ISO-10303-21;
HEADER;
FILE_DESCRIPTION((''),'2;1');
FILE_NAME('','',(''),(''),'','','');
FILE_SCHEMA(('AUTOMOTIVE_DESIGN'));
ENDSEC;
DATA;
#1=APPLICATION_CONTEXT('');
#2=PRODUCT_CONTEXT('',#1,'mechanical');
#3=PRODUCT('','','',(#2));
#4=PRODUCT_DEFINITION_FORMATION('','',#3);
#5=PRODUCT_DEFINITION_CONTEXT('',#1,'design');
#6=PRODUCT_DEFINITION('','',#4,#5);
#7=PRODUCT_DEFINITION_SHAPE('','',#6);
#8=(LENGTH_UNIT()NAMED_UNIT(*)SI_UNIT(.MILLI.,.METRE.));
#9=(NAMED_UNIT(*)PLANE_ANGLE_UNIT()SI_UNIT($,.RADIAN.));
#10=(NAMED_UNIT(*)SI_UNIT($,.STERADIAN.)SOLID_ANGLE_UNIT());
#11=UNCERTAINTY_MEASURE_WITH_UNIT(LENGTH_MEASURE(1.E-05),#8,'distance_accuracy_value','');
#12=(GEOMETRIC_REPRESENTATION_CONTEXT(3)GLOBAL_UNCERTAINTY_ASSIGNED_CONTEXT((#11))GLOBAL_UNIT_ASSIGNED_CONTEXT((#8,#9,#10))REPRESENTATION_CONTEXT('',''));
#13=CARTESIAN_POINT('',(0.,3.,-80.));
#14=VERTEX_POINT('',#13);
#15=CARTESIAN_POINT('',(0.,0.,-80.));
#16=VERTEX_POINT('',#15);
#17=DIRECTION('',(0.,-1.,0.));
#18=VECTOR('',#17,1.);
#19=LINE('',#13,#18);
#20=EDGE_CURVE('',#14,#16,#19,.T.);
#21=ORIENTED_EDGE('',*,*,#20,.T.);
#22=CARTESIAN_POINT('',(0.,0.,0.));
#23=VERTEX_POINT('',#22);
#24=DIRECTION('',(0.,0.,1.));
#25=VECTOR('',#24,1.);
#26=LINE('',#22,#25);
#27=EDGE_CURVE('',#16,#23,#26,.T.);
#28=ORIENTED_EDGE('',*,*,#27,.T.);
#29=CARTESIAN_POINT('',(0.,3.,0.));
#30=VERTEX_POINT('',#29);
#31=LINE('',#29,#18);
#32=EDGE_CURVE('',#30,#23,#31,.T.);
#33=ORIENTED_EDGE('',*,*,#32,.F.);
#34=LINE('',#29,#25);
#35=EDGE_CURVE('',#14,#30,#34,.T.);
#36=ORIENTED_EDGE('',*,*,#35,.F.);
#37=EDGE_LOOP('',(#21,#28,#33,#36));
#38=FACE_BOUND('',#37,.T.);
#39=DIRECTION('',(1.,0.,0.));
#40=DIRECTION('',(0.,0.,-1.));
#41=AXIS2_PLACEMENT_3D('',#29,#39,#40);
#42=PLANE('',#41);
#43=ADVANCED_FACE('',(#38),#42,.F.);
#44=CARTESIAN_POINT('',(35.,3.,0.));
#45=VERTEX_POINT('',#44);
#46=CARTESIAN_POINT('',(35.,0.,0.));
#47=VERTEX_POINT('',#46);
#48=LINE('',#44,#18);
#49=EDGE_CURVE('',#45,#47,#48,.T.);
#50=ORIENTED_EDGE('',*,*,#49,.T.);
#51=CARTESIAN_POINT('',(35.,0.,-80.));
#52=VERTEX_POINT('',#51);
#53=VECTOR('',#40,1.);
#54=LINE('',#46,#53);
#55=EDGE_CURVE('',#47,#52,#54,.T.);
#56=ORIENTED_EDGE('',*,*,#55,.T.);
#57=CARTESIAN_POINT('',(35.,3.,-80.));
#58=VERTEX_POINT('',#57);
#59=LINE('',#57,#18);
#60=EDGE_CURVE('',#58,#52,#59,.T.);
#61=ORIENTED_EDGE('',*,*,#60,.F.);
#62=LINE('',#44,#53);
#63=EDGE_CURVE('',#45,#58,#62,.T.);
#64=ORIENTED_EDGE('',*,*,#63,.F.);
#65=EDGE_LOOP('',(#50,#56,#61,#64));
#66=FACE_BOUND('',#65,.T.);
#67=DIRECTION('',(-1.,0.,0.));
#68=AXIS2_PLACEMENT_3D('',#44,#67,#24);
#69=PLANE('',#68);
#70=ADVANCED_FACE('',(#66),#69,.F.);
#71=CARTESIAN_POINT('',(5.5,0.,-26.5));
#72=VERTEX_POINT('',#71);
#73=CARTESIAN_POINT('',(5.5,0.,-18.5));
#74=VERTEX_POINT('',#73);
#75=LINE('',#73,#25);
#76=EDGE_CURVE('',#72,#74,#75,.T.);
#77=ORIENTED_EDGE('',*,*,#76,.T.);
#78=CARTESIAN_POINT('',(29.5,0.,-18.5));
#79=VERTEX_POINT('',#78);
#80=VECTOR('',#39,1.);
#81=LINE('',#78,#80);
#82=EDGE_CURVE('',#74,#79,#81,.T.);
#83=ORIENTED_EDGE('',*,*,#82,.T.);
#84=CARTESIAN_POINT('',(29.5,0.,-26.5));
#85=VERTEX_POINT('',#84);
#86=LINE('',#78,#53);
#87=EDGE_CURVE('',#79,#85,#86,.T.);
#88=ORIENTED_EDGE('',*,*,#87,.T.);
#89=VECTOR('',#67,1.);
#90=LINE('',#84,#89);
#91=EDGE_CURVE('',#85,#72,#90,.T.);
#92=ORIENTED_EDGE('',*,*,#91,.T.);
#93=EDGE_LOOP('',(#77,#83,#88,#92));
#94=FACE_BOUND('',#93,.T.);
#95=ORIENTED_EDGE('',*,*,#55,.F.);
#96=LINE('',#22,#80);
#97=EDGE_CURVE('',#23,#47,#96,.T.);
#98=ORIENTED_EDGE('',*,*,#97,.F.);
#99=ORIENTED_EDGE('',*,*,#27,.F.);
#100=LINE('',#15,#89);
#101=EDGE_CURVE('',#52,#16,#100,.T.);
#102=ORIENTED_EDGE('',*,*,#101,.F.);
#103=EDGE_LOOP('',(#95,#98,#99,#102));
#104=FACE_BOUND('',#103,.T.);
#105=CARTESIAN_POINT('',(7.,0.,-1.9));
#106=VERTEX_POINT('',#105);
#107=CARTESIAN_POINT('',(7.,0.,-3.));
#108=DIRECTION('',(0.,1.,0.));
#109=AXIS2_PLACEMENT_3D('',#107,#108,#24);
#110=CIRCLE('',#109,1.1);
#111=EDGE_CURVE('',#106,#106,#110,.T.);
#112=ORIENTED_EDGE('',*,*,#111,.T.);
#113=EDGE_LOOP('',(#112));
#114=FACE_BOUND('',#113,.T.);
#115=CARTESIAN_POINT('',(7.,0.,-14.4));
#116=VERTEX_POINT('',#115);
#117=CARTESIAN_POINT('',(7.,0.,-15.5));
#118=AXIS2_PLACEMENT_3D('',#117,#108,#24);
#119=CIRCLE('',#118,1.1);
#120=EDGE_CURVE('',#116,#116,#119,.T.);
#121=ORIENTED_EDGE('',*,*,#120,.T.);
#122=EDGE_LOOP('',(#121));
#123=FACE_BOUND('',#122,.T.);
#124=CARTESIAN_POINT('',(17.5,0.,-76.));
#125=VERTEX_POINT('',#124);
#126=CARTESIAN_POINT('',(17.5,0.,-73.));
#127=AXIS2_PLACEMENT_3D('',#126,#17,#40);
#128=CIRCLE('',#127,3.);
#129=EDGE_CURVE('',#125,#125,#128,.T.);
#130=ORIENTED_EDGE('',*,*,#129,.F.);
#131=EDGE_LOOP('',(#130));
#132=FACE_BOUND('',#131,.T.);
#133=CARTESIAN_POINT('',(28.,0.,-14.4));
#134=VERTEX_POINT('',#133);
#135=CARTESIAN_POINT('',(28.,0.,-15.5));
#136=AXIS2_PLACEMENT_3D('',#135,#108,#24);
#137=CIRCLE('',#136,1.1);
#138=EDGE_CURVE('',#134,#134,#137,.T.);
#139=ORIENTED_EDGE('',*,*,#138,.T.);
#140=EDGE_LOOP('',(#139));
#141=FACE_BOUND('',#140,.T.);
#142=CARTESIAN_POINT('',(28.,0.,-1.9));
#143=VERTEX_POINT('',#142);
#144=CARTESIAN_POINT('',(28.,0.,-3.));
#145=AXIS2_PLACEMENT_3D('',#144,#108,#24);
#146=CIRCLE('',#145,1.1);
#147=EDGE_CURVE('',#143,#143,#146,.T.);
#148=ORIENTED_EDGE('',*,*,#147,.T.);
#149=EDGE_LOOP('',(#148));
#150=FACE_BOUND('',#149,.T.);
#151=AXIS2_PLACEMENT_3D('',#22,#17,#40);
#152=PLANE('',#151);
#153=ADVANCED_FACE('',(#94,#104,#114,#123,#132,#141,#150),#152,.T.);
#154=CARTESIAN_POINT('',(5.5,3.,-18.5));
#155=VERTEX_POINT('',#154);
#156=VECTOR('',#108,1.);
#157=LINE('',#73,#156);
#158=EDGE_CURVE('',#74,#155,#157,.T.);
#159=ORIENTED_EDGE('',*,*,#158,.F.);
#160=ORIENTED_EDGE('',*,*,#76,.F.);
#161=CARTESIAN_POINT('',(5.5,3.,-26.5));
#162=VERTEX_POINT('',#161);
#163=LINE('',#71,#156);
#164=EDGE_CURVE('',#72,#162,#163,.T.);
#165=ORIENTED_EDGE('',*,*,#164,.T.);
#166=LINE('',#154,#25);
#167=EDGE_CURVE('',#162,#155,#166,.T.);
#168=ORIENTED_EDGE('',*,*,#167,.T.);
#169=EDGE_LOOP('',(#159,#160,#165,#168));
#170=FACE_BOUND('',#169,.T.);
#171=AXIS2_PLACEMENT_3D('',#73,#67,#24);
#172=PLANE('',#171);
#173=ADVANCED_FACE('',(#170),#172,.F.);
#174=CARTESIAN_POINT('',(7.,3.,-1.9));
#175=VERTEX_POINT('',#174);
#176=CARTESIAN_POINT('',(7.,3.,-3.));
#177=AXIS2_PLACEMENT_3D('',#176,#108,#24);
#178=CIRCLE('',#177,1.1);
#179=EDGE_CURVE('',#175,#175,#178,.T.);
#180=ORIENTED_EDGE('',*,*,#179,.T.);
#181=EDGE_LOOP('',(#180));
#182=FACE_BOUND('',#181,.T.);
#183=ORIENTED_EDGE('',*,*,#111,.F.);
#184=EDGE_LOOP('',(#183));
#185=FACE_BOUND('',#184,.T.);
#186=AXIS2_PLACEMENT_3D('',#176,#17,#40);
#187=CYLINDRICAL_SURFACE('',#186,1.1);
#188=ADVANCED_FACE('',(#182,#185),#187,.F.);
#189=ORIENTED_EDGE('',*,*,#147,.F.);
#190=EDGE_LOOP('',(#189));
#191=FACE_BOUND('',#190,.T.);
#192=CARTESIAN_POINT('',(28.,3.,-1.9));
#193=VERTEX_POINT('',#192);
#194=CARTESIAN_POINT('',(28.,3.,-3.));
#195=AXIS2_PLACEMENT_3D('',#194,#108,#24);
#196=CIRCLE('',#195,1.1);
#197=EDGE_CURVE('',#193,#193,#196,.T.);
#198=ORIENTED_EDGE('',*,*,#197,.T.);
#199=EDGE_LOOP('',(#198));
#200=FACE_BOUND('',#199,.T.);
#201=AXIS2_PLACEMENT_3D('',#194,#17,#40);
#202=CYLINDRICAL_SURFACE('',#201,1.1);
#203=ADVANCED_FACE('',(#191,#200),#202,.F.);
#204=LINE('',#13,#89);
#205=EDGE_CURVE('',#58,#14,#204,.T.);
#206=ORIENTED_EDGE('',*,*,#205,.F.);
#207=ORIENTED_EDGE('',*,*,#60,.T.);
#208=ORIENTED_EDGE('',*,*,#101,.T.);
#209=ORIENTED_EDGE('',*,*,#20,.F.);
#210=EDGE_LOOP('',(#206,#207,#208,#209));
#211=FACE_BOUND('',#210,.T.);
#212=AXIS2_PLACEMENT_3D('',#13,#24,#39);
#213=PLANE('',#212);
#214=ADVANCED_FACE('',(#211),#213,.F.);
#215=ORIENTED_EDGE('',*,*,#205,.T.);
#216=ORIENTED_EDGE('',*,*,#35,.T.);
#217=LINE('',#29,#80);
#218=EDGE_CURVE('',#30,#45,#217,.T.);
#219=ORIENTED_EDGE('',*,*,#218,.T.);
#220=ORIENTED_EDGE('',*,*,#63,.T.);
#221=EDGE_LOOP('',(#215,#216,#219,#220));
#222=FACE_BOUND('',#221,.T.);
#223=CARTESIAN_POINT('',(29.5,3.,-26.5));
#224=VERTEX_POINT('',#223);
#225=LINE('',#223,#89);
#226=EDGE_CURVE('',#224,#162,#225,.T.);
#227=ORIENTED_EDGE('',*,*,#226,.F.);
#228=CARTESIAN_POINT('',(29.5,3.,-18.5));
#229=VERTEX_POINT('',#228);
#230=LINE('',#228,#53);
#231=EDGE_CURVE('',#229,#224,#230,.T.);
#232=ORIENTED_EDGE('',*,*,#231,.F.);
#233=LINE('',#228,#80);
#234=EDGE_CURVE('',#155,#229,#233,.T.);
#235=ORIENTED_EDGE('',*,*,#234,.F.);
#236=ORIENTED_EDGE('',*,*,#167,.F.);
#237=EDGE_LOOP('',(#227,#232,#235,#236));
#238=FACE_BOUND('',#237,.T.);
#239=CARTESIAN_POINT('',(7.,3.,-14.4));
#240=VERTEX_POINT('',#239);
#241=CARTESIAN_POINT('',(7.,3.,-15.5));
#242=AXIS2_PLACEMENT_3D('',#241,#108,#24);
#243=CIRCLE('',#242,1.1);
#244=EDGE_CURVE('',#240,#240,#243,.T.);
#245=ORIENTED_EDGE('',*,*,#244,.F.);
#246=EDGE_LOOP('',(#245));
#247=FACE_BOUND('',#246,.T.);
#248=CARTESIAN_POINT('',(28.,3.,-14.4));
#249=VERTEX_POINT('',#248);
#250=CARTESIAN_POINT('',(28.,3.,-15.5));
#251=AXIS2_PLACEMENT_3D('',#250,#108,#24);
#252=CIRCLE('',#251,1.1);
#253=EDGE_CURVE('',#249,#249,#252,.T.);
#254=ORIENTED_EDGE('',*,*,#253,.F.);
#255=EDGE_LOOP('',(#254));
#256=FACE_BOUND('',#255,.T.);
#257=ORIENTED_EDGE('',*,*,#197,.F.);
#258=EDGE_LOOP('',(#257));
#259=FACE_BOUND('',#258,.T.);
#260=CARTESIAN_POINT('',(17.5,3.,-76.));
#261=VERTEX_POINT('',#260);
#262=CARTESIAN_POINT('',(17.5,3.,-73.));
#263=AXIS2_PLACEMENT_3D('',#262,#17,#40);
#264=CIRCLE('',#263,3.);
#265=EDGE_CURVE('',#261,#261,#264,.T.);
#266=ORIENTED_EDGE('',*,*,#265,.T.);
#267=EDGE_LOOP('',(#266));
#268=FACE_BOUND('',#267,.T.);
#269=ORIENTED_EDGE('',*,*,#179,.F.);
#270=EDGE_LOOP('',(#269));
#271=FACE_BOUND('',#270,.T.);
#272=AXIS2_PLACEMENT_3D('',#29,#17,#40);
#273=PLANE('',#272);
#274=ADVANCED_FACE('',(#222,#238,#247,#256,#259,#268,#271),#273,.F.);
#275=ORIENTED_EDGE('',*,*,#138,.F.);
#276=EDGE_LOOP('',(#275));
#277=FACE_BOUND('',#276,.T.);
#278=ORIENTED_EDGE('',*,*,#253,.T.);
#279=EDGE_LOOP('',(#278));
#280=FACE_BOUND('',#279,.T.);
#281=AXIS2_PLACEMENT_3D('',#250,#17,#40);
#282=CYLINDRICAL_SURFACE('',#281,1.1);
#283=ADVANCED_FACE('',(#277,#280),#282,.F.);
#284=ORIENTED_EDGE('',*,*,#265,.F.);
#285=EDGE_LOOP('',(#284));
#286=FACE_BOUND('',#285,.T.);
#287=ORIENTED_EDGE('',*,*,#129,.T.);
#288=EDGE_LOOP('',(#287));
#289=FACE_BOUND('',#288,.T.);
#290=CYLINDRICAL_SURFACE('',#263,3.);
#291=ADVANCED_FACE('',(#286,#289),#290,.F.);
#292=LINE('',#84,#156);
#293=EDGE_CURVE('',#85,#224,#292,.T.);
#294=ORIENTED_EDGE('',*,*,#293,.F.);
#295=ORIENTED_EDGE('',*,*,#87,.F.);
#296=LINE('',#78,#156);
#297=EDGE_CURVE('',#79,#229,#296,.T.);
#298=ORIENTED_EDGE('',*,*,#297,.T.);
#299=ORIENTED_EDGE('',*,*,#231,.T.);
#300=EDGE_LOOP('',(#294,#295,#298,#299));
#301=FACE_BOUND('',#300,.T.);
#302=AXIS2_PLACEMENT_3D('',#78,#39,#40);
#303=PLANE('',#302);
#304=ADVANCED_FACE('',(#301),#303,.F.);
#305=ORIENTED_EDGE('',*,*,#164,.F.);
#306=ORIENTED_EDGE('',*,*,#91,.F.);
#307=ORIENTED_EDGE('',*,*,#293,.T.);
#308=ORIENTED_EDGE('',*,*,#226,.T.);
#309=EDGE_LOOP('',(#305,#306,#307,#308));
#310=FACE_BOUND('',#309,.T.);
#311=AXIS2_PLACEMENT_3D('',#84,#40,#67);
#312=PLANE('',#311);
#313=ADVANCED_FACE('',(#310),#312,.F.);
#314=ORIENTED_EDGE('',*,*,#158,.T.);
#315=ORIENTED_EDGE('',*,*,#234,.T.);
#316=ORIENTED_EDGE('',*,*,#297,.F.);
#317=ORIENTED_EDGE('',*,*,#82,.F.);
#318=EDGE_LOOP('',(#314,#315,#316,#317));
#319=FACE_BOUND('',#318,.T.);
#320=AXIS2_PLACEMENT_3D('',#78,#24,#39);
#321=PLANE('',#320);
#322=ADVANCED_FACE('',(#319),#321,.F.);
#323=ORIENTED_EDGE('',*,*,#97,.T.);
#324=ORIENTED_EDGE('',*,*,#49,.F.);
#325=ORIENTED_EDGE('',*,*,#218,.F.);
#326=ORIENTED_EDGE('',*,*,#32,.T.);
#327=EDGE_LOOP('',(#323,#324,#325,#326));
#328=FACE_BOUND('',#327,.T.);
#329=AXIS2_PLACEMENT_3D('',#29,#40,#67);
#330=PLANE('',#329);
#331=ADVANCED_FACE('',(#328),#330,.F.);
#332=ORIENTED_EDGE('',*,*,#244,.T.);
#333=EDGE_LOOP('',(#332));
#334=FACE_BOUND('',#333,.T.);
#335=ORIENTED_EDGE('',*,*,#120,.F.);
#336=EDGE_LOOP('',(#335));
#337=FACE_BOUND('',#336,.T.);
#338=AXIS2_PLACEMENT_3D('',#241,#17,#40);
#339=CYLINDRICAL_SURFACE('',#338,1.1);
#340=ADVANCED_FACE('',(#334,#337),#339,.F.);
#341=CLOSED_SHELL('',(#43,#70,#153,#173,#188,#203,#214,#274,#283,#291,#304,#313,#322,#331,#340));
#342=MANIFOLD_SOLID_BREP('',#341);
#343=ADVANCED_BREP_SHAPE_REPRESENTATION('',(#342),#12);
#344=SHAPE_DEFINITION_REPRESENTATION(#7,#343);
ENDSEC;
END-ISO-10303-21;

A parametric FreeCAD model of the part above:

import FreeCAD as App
import Part
import Sketcher
from FreeCAD import Vector


def add_polygon(sketch, points):
    """Adds a closed chain of lines whose ends are joined by coincident constraints."""
    first, n = sketch.GeometryCount, len(points)
    for a, b in zip(points, points[1:] + points[:1]):
        sketch.addGeometry(Part.LineSegment(App.Vector(*a, 0), App.Vector(*b, 0)), False)
    for i in range(n):
        sketch.addConstraint(Sketcher.Constraint("Coincident", first + i, 2, first + (i + 1) % n, 1))

doc = App.newDocument("Part")
body = doc.addObject("PartDesign::Body", "Body")

sketch1 = body.newObject("Sketcher::SketchObject", "Sketch")
sketch1.AttachmentSupport = (doc.getObject("XZ_Plane"), [""])
sketch1.MapMode = "FlatFace"
add_polygon(sketch1, [(0, -80), (0, 0), (35, 0), (35, -80)])
sketch1.addGeometry(Part.Circle(Vector(7, -3, 0), Vector(0, 0, 1), 1.1), False)
sketch1.addGeometry(Part.Circle(Vector(28, -3, 0), Vector(0, 0, 1), 1.1), False)
sketch1.addGeometry(Part.Circle(Vector(7, -15.5, 0), Vector(0, 0, 1), 1.1), False)
sketch1.addGeometry(Part.Circle(Vector(28, -15.5, 0), Vector(0, 0, 1), 1.1), False)
sketch1.addConstraint([
    Sketcher.Constraint("Vertical", 0),
    Sketcher.Constraint("Horizontal", 1),
    Sketcher.Constraint("Vertical", 2),
    Sketcher.Constraint("Horizontal", 3),
    Sketcher.Constraint("Coincident", 0, 2, -1, 1),
    Sketcher.Constraint("Equal", 4, 5),
    Sketcher.Constraint("Equal", 5, 6),
    Sketcher.Constraint("Equal", 6, 7),
    Sketcher.Constraint("Horizontal", 4, 3, 5, 3),
    Sketcher.Constraint("Horizontal", 6, 3, 7, 3),
    Sketcher.Constraint("Vertical", 4, 3, 6, 3),
    Sketcher.Constraint("Vertical", 5, 3, 7, 3),
    Sketcher.Constraint("Diameter", 4, 2.2),
    Sketcher.Constraint("DistanceX", 1, 1, 1, 2, 35.0),
    Sketcher.Constraint("DistanceY", 0, 1, 0, 2, 80.0),
    Sketcher.Constraint("DistanceX", -1, 1, 4, 3, 7.0),
    Sketcher.Constraint("DistanceY", 4, 3, -1, 1, 3.0),
    Sketcher.Constraint("DistanceX", -1, 1, 5, 3, 28.0),
    Sketcher.Constraint("DistanceY", 6, 3, -1, 1, 15.5),
])
pad1 = body.newObject("PartDesign::Pad", "Pad")
pad1.Profile = sketch1
pad1.Length = 3
pad1.Reversed = True

sketch2 = body.newObject("Sketcher::SketchObject", "Sketch001")
sketch2.AttachmentSupport = (doc.getObject("XZ_Plane"), [""])
sketch2.MapMode = "FlatFace"
sketch2.addGeometry(Part.Circle(Vector(17.5, -73, 0), Vector(0, 0, 1), 3), False)
sketch2.addConstraint([
    Sketcher.Constraint("Diameter", 0, 6.0),
    Sketcher.Constraint("DistanceY", 0, 3, -1, 1, 73.0),
    Sketcher.Constraint("DistanceX", -1, 1, 0, 3, 17.5),
])
pocket1 = body.newObject("PartDesign::Pocket", "Pocket")
pocket1.Profile = sketch2
pocket1.Type = "ThroughAll"

sketch3 = body.newObject("Sketcher::SketchObject", "Sketch002")
sketch3.AttachmentSupport = (doc.getObject("XZ_Plane"), [""])
sketch3.MapMode = "FlatFace"
sketch3.AttachmentOffset = App.Placement(Vector(0, 0, -3), App.Rotation())
add_polygon(sketch3, [(6, -26), (6, -18), (30, -18), (30, -26)])
sketch3.addConstraint([
    Sketcher.Constraint("Vertical", 0),
    Sketcher.Constraint("Horizontal", 1),
    Sketcher.Constraint("Vertical", 2),
    Sketcher.Constraint("Horizontal", 3),
    Sketcher.Constraint("DistanceX", 1, 1, 1, 2, 24.0),
    Sketcher.Constraint("DistanceY", 0, 1, 0, 2, 8.0),
    Sketcher.Constraint("DistanceX", -1, 1, 0, 2, 5.5),
    Sketcher.Constraint("DistanceY", 0, 2, -1, 1, 18.5),
])
pocket2 = body.newObject("PartDesign::Pocket", "Pocket001")
pocket2.Profile = sketch3
pocket2.Type = "ThroughAll"
pocket2.Reversed = True

doc.recompute()
